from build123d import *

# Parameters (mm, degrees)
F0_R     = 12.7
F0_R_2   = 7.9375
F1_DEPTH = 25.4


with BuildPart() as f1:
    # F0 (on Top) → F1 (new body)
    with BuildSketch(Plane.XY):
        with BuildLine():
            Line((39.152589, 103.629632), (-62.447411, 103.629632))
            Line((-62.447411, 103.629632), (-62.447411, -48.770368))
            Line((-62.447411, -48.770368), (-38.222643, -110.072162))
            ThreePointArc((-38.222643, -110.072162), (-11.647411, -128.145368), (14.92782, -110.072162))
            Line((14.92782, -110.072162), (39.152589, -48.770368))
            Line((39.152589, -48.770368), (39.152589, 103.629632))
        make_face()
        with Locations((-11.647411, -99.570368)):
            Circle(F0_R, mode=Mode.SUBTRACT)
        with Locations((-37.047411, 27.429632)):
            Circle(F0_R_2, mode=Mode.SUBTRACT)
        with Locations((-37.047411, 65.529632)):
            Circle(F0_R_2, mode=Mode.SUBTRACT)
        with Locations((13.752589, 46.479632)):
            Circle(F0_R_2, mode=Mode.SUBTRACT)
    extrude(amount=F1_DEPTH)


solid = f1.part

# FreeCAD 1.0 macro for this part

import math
import FreeCAD as App
import Part
import Sketcher

V = App.Vector
Q = App.Units.Quantity

doc = App.newDocument("Part")
body = doc.addObject("PartDesign::Body", "Body")

sketch1 = body.newObject("Sketcher::SketchObject", "Sketch")
sketch1.AttachmentSupport = (doc.getObject("XY_Plane"), [""])
sketch1.MapMode = "FlatFace"
sketch1.addGeometry([
    Part.LineSegment(V(39, 104, 0), V(-62, 104, 0)),
    Part.LineSegment(V(-62, 104, 0), V(-62, -49, 0)),
    Part.LineSegment(V(-62, -49, 0), V(-38, -110, 0)),
    Part.ArcOfCircle(Part.Circle(V(-12, -100, 0), V(0, 0, 1), 29), math.radians(-158), math.radians(-22)),
    Part.LineSegment(V(15, -110, 0), V(39, -49, 0)),
    Part.LineSegment(V(39, -49, 0), V(39, 104, 0)),
    Part.Circle(V(-12, -100, 0), V(0, 0, 1), 13),
    Part.Circle(V(-37, 27, 0), V(0, 0, 1), 8),
    Part.Circle(V(-37, 66, 0), V(0, 0, 1), 8),
    Part.Circle(V(14, 46, 0), V(0, 0, 1), 8),
], False)
sketch1.addConstraint([
    Sketcher.Constraint("Coincident", 0, 2, 1, 1),
    Sketcher.Constraint("Coincident", 1, 2, 2, 1),
    Sketcher.Constraint("Tangent", 2, 2, 3, 1),
    Sketcher.Constraint("Tangent", 3, 2, 4, 1),
    Sketcher.Constraint("Coincident", 4, 2, 5, 1),
    Sketcher.Constraint("Coincident", 5, 2, 0, 1),
    Sketcher.Constraint("Horizontal", 0),
    Sketcher.Constraint("Vertical", 1),
    Sketcher.Constraint("Vertical", 5),
    Sketcher.Constraint("Coincident", 6, 3, 3, 3),
    Sketcher.Constraint("Equal", 7, 8),
    Sketcher.Constraint("Equal", 8, 9),
    Sketcher.Constraint("Horizontal", 2, 2, 3, 2),
    Sketcher.Constraint("Horizontal", 1, 2, 4, 2),
    Sketcher.Constraint("Vertical", 7, 3, 8, 3),
    Sketcher.Constraint("Diameter", 6, Q("1 in")),
    Sketcher.Constraint("DistanceX", 0, 2, 0, 1, Q("4 in")),
    Sketcher.Constraint("DistanceY", 1, 2, 1, 1, Q("6 in")),
    Sketcher.Constraint("Diameter", 7, Q("0.625 in")),
    Sketcher.Constraint("Radius", 3, Q("1.125 in")),
    Sketcher.Constraint("DistanceX", 7, 3, 6, 3, Q("1 in")),
    Sketcher.Constraint("DistanceY", 6, 3, 7, 3, Q("5 in")),
    Sketcher.Constraint("DistanceX", 7, 3, 9, 3, Q("2 in")),
    Sketcher.Constraint("DistanceY", 7, 3, 0, 2, Q("3 in")),
    Sketcher.Constraint("DistanceY", 7, 3, 8, 3, Q("1.5 in")),
    Sketcher.Constraint("DistanceY", 7, 3, 9, 3, Q("0.75 in")),
    Sketcher.Constraint("DistanceX", 3, 3, -1, 1, 11.647412),
    Sketcher.Constraint("DistanceY", 3, 3, -1, 1, 99.570369),
])
pad1 = body.newObject("PartDesign::Pad", "Pad")
pad1.Profile = sketch1
pad1.Length = Q("1 in")

doc.recompute()
